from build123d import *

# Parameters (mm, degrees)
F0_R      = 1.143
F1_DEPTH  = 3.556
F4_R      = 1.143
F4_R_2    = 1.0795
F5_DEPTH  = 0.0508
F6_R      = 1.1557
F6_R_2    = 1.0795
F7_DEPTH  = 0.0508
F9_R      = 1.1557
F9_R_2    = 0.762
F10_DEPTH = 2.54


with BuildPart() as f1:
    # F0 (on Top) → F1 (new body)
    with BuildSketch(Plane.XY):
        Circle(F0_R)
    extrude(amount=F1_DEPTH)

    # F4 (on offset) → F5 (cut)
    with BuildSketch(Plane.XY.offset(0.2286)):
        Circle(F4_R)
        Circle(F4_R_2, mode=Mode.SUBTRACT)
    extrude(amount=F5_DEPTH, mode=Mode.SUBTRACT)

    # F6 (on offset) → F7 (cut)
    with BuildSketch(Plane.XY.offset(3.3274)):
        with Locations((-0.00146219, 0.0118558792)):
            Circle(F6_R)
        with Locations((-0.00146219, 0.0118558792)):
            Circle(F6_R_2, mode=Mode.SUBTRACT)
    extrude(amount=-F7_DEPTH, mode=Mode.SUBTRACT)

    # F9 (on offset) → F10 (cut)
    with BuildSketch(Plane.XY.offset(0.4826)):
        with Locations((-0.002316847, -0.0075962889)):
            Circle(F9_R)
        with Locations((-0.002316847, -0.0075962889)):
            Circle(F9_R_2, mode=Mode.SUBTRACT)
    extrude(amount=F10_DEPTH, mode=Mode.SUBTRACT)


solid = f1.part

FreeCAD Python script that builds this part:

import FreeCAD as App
import Part
import Sketcher

V = App.Vector
Q = App.Units.Quantity

doc = App.newDocument("Part")
body = doc.addObject("PartDesign::Body", "Body")

sketch1 = body.newObject("Sketcher::SketchObject", "Sketch")
sketch1.AttachmentSupport = (doc.getObject("XY_Plane"), [""])
sketch1.MapMode = "FlatFace"
sketch1.addGeometry(Part.Circle(V(0, 0, 0), V(0, 0, 1), 1.1), False)
sketch1.addConstraint([
    Sketcher.Constraint("Coincident", 0, 3, -1, 1),
    Sketcher.Constraint("Diameter", 0, Q("0.09 in")),
])
pad1 = body.newObject("PartDesign::Pad", "Pad")
pad1.Profile = sketch1
pad1.Length = Q("0.14 in")

sketch2 = body.newObject("Sketcher::SketchObject", "Sketch001")
sketch2.AttachmentSupport = (doc.getObject("XY_Plane"), [""])
sketch2.MapMode = "FlatFace"
sketch2.AttachmentOffset = App.Placement(V(0, 0, 0.009 * 25.4), App.Rotation())
sketch2.addGeometry([
    Part.Circle(V(0, 0, 0), V(0, 0, 1), 1.1),
    Part.Circle(V(0, 0, 0), V(0, 0, 1), 1.1),
], False)
sketch2.addConstraint([
    Sketcher.Constraint("Coincident", 0, 3, -1, 1),
    Sketcher.Constraint("Coincident", 1, 3, -1, 1),
    Sketcher.Constraint("Diameter", 0, Q("0.09 in")),
    Sketcher.Constraint("Diameter", 1, Q("0.085 in")),
])
pocket1 = body.newObject("PartDesign::Pocket", "Pocket")
pocket1.Profile = sketch2
pocket1.Length = Q("0.002 in")
pocket1.Reversed = True

sketch3 = body.newObject("Sketcher::SketchObject", "Sketch002")
sketch3.AttachmentSupport = (doc.getObject("XY_Plane"), [""])
sketch3.MapMode = "FlatFace"
sketch3.AttachmentOffset = App.Placement(V(0, 0, 0.131 * 25.4), App.Rotation())
sketch3.addGeometry([
    Part.Circle(V(0, 0, 0), V(0, 0, 1), 1.2),
    Part.Circle(V(0, 0, 0), V(0, 0, 1), 1.1),
], False)
sketch3.addConstraint([
    Sketcher.Constraint("Coincident", 1, 3, 0, 3),
    Sketcher.Constraint("Diameter", 0, Q("0.091 in")),
    Sketcher.Constraint("Diameter", 1, Q("0.085 in")),
    Sketcher.Constraint("DistanceX", 0, 3, -1, 1, Q("0.001462 mm")),
    Sketcher.Constraint("DistanceY", -1, 1, 0, 3, Q("0.011856 mm")),
])
pocket2 = body.newObject("PartDesign::Pocket", "Pocket001")
pocket2.Profile = sketch3
pocket2.Length = Q("0.002 in")

sketch4 = body.newObject("Sketcher::SketchObject", "Sketch003")
sketch4.AttachmentSupport = (doc.getObject("XY_Plane"), [""])
sketch4.MapMode = "FlatFace"
sketch4.AttachmentOffset = App.Placement(V(0, 0, 0.019 * 25.4), App.Rotation())
sketch4.addGeometry([
    Part.Circle(V(0, 0, 0), V(0, 0, 1), 1.2),
    Part.Circle(V(0, 0, 0), V(0, 0, 1), 0.8),
], False)
sketch4.addConstraint([
    Sketcher.Constraint("Coincident", 1, 3, 0, 3),
    Sketcher.Constraint("Diameter", 1, Q("0.06 in")),
    Sketcher.Constraint("Diameter", 0, Q("0.091 in")),
    Sketcher.Constraint("DistanceX", 0, 3, -1, 1, Q("0.002317 mm")),
    Sketcher.Constraint("DistanceY", 0, 3, -1, 1, Q("0.007596 mm")),
])
pocket3 = body.newObject("PartDesign::Pocket", "Pocket002")
pocket3.Profile = sketch4
pocket3.Length = Q("0.1 in")
pocket3.Reversed = True

doc.recompute()
